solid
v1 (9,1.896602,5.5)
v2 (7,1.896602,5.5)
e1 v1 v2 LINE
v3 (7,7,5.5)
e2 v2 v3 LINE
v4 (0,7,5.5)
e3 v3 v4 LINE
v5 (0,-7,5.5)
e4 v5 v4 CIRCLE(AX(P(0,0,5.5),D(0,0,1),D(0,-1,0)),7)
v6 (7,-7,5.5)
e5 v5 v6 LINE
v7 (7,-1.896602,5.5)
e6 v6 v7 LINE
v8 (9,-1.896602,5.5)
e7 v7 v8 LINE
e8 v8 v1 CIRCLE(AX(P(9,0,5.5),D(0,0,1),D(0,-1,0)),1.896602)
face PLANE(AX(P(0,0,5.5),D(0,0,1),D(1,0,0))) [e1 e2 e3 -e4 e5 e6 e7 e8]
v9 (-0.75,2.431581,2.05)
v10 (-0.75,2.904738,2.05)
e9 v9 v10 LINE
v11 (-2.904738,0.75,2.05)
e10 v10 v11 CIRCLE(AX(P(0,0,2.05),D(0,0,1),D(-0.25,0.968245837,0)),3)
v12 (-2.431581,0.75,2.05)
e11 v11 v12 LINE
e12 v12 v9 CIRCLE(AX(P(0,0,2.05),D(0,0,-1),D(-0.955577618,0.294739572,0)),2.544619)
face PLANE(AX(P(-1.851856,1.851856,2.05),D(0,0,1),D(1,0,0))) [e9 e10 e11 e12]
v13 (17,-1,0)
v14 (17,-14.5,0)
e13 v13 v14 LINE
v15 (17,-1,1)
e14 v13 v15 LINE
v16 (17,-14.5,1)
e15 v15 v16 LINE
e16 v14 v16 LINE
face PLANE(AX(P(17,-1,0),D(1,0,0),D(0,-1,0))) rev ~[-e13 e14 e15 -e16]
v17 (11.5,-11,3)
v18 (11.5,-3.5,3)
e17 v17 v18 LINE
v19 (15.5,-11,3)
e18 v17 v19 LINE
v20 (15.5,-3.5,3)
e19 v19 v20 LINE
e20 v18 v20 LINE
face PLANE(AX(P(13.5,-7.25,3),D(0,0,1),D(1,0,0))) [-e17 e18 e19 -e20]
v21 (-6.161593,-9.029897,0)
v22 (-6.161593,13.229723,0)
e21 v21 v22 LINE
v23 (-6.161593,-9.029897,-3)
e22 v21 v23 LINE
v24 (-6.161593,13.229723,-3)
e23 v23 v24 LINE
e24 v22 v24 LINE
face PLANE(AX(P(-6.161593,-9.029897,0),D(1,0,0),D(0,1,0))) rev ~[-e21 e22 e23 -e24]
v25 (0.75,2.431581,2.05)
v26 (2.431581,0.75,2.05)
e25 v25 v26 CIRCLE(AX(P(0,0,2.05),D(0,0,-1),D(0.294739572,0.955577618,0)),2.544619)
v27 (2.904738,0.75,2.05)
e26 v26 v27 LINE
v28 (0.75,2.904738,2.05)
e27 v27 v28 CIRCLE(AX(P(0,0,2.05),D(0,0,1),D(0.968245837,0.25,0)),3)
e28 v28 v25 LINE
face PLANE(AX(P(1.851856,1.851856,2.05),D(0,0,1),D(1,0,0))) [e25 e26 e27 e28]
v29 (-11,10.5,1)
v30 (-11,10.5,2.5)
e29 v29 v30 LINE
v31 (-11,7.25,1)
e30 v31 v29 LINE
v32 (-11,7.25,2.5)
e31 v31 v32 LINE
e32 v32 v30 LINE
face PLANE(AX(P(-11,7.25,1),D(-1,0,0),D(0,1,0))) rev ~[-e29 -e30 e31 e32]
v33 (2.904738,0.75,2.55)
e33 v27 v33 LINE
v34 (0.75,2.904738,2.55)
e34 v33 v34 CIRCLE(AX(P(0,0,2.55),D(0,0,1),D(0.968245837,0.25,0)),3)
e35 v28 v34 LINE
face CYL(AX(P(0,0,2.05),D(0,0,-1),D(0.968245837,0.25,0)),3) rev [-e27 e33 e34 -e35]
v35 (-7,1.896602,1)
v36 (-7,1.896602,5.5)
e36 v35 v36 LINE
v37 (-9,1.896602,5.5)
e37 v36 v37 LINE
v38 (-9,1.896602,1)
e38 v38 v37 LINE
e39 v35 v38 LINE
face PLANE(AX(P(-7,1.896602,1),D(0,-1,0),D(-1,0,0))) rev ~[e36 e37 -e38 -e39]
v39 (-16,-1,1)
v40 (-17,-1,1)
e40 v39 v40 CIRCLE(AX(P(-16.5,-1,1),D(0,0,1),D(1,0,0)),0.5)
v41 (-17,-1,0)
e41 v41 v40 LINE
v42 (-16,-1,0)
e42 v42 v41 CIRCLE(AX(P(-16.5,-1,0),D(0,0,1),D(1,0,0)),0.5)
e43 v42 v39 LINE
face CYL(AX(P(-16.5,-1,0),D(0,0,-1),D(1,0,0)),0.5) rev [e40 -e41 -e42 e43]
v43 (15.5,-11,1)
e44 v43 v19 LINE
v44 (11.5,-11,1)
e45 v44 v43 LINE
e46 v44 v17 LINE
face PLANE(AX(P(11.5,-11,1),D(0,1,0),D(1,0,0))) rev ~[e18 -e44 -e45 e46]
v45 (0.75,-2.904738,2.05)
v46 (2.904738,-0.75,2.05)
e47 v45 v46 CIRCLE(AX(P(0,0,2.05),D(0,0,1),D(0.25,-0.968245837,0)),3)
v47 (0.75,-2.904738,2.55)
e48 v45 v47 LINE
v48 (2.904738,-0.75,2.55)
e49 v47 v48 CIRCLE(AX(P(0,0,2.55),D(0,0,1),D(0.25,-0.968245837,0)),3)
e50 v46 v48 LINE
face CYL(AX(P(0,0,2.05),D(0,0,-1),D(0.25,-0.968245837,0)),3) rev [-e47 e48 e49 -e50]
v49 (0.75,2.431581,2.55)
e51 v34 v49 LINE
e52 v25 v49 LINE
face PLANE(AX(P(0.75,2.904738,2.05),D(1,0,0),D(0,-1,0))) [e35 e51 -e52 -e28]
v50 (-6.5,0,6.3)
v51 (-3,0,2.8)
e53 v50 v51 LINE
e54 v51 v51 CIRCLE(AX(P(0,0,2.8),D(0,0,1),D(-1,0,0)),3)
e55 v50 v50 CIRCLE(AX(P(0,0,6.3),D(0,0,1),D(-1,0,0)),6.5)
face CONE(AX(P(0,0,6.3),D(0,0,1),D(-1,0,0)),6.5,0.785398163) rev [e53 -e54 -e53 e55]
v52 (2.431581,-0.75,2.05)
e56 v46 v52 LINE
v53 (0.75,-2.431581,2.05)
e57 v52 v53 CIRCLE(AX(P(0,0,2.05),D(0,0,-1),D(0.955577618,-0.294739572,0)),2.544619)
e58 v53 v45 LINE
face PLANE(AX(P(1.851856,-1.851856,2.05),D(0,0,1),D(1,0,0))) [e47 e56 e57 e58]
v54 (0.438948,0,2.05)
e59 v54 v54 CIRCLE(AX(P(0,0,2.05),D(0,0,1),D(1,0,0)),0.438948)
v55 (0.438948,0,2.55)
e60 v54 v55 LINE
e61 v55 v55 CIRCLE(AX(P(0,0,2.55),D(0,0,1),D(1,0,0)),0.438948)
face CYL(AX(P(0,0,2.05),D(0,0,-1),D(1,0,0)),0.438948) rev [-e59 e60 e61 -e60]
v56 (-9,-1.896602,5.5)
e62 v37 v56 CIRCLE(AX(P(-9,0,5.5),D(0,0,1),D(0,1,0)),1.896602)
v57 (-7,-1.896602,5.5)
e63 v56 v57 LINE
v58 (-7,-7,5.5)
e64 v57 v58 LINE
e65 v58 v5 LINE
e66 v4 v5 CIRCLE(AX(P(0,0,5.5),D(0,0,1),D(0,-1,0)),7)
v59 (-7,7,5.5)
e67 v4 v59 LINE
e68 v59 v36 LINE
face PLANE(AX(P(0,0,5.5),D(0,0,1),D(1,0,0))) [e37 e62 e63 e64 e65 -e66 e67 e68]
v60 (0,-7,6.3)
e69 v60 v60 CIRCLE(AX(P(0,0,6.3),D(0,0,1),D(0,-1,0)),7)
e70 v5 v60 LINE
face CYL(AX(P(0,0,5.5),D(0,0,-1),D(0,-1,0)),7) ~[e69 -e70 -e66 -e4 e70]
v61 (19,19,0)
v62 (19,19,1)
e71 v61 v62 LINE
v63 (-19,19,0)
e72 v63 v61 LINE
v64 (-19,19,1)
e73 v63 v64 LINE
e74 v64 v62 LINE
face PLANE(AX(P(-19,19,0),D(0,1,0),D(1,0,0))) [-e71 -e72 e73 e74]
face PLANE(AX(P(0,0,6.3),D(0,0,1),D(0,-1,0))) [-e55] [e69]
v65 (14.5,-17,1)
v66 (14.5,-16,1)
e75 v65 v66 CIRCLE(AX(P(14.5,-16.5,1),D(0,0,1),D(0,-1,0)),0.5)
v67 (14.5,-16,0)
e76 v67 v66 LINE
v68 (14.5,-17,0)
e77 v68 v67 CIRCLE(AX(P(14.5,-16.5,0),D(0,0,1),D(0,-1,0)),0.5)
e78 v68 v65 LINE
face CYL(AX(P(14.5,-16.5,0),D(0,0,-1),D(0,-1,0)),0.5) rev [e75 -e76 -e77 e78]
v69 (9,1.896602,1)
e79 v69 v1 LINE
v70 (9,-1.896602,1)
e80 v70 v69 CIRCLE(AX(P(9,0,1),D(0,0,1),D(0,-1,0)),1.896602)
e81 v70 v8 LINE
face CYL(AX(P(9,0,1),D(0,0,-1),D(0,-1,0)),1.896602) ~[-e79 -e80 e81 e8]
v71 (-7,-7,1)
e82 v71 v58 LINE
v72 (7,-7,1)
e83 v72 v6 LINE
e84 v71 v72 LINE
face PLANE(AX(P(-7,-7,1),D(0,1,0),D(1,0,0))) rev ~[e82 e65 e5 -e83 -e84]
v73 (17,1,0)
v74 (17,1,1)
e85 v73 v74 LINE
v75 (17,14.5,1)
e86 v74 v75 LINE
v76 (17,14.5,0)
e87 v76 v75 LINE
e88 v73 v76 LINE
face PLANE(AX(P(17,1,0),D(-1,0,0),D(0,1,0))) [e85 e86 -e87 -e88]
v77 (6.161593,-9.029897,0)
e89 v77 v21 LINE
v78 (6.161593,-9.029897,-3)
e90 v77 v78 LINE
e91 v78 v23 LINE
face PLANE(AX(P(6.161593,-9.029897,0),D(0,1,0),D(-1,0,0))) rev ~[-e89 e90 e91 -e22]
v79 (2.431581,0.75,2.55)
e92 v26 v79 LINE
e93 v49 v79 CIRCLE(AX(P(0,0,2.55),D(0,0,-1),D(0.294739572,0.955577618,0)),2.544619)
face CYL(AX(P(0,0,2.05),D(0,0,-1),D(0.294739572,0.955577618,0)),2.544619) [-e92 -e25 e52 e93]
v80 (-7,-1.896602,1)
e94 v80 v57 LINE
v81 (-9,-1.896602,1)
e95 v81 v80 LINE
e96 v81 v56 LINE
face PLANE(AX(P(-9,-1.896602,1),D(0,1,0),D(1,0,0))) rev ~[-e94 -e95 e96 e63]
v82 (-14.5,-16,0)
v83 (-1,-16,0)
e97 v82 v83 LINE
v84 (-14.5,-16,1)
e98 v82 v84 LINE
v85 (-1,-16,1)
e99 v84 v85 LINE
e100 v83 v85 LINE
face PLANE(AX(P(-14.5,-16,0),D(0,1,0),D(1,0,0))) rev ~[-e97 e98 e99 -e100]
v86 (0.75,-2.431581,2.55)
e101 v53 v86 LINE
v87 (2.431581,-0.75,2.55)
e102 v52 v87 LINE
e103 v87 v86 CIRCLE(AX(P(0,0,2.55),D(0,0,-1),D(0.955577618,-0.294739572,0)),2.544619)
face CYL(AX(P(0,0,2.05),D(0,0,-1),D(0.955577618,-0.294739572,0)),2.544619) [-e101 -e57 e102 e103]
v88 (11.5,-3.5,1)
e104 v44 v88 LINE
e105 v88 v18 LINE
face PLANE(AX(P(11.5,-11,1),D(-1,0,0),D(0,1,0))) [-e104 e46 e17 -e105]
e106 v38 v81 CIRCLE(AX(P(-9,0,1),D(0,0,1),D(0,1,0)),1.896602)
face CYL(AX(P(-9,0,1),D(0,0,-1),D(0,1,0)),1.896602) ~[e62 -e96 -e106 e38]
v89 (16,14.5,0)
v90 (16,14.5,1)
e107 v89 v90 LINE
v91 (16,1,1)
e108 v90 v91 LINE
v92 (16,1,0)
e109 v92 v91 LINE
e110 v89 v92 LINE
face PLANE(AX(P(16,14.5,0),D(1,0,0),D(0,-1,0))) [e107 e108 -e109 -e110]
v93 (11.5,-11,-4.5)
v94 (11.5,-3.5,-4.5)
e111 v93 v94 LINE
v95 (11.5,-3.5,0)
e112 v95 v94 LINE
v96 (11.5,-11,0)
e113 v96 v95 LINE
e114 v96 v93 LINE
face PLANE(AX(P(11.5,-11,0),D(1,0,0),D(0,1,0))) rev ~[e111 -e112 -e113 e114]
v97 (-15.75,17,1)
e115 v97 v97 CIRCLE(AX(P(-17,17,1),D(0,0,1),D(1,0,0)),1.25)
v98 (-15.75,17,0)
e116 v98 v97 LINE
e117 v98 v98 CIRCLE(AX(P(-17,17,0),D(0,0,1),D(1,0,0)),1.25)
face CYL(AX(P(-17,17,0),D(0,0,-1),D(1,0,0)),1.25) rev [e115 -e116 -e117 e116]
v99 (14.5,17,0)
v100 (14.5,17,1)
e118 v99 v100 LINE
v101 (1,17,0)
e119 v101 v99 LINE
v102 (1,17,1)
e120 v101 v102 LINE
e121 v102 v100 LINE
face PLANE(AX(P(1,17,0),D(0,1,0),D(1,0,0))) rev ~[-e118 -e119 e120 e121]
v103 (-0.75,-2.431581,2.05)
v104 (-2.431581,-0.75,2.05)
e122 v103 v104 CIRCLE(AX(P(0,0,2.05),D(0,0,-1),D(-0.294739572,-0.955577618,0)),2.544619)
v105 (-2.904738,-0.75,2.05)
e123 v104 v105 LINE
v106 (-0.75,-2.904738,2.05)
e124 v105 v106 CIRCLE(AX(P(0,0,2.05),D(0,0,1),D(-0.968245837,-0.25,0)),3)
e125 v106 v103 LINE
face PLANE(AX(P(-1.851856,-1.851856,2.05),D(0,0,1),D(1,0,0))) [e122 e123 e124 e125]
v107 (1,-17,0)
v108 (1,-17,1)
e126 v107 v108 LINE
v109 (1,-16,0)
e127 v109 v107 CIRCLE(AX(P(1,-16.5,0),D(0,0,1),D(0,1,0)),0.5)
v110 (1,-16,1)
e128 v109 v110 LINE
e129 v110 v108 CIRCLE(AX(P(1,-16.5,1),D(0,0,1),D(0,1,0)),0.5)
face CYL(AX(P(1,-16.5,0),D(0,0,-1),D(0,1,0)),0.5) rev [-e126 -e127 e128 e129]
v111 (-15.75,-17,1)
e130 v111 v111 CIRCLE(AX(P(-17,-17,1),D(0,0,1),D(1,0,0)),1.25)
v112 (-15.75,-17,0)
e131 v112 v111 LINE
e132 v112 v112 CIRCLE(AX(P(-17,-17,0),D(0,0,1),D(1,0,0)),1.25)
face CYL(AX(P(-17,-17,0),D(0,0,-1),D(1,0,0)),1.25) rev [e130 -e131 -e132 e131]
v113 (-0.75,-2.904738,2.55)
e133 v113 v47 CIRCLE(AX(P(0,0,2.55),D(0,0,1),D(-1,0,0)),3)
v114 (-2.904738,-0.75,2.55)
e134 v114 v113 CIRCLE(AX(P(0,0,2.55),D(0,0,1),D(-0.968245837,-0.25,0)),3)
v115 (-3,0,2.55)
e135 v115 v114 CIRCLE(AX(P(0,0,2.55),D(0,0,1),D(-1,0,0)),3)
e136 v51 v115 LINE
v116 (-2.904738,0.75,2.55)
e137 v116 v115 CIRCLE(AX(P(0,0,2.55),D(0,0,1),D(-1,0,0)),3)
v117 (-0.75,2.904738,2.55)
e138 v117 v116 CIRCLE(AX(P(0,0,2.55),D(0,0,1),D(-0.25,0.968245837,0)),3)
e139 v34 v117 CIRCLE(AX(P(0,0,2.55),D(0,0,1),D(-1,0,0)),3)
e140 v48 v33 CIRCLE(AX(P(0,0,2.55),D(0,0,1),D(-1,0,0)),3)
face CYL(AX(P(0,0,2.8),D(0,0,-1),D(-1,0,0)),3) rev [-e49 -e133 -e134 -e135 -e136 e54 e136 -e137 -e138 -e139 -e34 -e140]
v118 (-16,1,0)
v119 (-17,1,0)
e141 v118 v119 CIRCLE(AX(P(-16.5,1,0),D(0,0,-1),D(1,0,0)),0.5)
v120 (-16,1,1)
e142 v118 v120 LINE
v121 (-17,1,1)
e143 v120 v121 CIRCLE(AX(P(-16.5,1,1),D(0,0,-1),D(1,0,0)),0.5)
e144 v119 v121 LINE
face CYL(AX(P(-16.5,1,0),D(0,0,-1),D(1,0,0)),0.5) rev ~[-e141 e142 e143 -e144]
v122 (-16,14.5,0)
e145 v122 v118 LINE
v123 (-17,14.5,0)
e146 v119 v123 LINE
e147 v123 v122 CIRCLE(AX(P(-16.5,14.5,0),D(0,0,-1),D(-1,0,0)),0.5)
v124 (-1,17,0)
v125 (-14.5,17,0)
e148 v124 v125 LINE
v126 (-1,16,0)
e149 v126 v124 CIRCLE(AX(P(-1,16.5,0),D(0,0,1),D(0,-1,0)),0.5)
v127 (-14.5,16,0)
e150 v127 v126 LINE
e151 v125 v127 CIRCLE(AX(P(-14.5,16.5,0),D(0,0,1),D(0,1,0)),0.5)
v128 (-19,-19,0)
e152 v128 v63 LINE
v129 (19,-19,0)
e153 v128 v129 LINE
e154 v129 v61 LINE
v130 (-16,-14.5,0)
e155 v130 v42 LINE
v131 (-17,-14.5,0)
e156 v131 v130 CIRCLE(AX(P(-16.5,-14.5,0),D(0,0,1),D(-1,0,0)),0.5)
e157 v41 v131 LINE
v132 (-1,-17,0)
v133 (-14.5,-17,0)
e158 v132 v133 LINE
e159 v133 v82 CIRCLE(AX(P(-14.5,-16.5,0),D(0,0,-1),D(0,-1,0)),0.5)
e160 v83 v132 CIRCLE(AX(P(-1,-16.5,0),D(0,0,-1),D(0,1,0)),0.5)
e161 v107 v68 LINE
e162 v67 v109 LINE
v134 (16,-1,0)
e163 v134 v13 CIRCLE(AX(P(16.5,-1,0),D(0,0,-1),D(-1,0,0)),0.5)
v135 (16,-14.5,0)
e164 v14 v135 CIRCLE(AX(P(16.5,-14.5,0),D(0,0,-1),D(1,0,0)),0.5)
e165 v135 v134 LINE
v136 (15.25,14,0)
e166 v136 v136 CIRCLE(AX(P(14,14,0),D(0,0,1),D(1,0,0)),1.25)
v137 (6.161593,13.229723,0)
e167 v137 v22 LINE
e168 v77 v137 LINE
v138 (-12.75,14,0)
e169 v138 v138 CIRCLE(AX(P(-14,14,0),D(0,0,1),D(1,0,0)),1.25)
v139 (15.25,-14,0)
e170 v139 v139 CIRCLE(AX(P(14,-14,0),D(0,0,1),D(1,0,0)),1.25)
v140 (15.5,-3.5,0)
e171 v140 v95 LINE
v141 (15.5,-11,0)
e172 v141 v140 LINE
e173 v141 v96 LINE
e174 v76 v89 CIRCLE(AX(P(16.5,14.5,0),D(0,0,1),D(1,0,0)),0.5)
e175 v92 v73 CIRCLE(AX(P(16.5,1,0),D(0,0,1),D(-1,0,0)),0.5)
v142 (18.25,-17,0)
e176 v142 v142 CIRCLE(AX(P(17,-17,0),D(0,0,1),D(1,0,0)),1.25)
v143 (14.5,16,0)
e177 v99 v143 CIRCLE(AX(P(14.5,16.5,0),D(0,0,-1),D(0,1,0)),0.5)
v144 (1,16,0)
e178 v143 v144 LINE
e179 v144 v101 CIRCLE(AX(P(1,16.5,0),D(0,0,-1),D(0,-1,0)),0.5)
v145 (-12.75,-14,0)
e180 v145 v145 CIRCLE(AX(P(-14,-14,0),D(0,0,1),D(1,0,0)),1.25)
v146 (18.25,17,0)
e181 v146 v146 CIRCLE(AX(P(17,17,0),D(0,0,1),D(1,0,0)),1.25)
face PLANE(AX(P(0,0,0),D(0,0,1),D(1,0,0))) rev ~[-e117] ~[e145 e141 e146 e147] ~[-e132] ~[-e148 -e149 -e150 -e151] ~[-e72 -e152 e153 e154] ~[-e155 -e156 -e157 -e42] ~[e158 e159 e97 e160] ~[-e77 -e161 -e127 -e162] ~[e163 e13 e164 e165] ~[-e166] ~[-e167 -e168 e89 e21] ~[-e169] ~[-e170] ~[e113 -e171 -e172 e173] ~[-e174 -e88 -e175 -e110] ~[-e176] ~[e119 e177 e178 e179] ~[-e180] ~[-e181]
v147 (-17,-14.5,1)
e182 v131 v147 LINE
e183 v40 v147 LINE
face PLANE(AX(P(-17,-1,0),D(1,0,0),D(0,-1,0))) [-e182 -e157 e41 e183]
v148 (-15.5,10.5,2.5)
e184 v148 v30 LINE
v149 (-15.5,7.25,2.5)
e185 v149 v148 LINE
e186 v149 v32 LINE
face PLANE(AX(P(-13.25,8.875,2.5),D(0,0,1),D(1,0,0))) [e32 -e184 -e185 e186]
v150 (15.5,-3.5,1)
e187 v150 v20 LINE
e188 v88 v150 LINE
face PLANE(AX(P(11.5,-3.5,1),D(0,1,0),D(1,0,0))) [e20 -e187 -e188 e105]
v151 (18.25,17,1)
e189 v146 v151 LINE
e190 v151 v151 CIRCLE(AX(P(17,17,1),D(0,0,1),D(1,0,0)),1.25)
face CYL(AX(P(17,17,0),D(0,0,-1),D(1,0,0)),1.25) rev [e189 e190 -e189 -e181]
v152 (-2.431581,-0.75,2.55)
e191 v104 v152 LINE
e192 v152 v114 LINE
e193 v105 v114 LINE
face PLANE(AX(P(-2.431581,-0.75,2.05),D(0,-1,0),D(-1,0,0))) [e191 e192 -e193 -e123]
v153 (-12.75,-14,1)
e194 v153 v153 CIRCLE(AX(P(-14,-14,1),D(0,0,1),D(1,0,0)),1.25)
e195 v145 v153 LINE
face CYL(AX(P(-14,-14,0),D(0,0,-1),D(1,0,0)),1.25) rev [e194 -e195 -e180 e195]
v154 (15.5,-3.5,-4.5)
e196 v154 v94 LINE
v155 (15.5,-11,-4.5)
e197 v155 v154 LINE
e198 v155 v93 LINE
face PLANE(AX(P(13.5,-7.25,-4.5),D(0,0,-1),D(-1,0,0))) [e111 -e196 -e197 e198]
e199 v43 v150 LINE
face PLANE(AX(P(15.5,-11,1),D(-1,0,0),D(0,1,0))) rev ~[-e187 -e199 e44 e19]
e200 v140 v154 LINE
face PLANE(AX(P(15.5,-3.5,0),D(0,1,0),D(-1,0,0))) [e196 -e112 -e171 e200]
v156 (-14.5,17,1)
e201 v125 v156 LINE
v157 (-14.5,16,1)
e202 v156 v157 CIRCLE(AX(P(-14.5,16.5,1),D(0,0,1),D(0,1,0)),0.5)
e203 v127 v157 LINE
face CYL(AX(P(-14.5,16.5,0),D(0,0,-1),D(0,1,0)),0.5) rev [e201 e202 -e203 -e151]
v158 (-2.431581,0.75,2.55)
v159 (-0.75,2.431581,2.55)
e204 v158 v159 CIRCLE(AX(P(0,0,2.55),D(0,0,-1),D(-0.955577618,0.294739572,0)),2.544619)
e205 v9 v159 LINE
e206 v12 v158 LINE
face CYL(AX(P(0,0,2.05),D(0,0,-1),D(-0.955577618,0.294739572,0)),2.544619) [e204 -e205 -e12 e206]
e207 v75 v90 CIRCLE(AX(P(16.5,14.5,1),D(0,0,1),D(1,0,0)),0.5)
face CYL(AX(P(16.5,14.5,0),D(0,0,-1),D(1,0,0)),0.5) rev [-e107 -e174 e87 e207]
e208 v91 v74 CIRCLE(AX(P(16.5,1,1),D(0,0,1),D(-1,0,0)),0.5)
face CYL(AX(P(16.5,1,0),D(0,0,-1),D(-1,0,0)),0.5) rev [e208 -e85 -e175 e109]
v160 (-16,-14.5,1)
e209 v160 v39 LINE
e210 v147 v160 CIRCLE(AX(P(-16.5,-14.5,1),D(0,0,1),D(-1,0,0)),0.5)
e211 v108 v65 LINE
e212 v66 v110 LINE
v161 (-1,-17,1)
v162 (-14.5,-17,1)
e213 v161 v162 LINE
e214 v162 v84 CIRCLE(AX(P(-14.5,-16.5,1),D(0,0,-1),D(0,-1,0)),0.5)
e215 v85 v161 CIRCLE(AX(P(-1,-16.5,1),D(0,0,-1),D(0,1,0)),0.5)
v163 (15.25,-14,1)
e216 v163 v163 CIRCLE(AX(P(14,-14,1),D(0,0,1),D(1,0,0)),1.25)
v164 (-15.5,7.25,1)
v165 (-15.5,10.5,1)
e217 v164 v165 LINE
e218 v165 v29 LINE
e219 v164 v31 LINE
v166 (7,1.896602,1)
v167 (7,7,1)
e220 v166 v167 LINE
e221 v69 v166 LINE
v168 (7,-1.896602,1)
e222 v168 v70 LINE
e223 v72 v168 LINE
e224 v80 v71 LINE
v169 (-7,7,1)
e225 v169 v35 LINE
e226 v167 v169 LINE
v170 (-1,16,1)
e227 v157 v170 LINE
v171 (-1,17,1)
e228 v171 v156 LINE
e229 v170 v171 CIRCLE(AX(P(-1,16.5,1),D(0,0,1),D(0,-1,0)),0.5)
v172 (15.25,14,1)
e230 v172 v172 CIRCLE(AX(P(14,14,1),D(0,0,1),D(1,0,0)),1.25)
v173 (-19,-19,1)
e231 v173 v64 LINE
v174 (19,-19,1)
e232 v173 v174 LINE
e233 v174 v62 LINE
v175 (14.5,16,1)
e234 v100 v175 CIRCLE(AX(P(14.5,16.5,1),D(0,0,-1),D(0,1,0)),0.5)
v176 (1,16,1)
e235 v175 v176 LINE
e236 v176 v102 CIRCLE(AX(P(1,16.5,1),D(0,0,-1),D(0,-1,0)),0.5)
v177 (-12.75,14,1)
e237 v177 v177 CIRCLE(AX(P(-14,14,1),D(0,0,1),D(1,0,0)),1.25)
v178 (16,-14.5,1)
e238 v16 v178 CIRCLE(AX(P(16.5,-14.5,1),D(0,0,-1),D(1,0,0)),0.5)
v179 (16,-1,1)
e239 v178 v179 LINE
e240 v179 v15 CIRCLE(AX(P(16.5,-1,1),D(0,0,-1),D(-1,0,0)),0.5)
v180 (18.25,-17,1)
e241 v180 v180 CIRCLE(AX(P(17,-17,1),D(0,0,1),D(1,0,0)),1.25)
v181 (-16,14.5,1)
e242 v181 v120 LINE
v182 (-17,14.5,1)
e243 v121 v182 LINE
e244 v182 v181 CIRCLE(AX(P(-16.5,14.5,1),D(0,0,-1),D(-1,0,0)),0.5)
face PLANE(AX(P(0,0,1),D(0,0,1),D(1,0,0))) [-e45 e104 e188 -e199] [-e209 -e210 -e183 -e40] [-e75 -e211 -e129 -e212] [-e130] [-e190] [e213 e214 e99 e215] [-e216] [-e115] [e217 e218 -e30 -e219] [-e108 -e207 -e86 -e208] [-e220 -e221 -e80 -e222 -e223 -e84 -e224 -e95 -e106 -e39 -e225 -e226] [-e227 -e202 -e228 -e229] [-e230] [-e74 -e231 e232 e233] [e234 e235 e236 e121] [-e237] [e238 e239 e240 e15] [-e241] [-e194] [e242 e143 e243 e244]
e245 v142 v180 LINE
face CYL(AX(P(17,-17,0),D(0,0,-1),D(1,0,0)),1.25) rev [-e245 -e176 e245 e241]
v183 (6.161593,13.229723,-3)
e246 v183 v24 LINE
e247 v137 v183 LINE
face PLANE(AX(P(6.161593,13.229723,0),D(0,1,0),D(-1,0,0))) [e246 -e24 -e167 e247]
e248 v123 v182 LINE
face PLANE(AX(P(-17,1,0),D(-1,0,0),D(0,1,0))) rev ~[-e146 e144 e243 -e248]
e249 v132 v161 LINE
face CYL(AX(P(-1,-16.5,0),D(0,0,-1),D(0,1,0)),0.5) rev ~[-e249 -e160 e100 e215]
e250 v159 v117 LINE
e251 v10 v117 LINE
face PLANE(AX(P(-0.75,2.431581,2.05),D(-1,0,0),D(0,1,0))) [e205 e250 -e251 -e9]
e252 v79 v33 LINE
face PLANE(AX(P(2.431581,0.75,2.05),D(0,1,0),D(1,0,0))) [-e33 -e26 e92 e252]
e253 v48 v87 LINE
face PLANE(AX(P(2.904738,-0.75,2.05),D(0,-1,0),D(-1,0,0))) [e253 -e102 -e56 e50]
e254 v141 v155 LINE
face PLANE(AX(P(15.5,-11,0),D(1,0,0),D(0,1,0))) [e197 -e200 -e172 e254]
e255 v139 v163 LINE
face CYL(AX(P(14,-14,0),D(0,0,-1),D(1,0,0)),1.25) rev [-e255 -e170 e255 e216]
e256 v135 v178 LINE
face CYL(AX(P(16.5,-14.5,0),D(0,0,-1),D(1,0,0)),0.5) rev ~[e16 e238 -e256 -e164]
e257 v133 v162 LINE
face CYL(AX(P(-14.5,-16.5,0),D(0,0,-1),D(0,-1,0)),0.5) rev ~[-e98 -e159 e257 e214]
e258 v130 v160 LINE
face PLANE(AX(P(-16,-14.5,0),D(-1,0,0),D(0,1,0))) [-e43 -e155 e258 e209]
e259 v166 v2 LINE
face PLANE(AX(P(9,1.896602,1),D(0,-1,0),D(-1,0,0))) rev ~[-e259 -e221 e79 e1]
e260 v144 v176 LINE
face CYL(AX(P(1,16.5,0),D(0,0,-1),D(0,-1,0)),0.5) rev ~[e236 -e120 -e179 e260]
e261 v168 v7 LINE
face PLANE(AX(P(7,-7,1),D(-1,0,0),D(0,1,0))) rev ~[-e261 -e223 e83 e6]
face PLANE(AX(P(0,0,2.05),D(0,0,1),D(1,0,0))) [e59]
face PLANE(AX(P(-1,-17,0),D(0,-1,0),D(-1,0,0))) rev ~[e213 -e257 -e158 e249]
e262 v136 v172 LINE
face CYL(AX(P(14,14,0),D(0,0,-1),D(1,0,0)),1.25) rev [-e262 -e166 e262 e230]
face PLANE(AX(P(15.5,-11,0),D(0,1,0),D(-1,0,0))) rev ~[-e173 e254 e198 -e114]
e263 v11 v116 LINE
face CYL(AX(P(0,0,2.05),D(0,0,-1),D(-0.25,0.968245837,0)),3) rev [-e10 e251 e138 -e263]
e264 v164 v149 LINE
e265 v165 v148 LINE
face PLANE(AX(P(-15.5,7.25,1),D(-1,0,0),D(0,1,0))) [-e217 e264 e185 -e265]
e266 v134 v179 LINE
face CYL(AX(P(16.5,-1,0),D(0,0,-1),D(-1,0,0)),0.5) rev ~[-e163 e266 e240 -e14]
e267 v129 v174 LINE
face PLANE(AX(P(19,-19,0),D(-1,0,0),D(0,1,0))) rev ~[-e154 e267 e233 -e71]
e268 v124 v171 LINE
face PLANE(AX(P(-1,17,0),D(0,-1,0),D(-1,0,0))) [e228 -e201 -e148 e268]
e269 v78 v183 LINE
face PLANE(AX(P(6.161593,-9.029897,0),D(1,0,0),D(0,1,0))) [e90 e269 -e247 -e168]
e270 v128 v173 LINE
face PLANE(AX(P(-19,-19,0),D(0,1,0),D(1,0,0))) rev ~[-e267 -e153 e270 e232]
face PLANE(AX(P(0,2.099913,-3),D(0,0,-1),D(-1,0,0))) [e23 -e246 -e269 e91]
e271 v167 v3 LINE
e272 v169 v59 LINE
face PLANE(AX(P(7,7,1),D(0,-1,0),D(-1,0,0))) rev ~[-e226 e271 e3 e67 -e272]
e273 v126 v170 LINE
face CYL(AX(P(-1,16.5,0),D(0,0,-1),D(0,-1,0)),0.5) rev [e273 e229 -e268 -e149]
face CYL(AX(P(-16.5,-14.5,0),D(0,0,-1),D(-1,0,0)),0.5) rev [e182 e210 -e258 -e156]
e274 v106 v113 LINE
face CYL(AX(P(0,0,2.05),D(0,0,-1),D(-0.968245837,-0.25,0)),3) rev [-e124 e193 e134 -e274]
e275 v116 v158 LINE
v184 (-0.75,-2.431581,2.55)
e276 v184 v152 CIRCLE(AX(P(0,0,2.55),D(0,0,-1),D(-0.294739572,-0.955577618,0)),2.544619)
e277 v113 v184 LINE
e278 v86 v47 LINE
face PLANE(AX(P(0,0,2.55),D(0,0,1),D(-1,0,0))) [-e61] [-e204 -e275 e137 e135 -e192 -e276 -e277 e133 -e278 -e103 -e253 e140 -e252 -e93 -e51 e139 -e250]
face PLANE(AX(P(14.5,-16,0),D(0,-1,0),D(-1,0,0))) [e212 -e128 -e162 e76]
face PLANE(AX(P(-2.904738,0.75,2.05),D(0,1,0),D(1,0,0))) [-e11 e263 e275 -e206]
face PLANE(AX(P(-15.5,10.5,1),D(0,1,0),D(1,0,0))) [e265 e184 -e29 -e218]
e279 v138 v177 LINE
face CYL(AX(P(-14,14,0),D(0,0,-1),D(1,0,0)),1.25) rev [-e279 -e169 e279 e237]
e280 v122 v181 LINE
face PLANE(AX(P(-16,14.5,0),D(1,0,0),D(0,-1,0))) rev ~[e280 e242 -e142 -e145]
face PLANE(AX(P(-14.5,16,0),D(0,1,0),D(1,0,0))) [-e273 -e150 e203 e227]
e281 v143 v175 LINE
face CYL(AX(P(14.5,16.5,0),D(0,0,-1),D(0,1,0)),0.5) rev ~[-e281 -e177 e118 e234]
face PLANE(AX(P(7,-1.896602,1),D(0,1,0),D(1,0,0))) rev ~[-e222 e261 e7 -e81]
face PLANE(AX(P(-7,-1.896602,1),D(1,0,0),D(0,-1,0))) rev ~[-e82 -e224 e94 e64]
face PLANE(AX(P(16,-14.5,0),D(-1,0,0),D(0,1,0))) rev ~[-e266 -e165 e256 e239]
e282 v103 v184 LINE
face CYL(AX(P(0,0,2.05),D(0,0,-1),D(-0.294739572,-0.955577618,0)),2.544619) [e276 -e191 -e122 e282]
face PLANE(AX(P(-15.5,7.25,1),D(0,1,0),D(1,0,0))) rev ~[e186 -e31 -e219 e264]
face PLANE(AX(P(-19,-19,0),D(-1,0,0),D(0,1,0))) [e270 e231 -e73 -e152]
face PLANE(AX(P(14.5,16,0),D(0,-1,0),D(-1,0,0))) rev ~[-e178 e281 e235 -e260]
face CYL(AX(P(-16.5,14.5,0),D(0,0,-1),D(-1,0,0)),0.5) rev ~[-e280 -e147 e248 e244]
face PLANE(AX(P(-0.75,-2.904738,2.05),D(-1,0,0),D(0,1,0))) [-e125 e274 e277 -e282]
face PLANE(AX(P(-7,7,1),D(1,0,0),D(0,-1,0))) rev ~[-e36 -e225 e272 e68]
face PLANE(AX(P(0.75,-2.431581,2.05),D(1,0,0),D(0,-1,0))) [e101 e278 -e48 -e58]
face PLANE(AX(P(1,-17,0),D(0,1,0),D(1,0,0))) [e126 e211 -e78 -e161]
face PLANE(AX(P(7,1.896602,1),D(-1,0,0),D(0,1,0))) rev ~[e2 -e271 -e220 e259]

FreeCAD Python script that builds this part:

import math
import FreeCAD as App
import Part
import Sketcher
from FreeCAD import Vector
Q = App.Units.Quantity

doc = App.newDocument("Part")
body = doc.addObject("PartDesign::Body", "Body")

# Sketch on XY plane
sketch1 = body.newObject("Sketcher::SketchObject", "Sketch")
sketch1.AttachmentSupport = (doc.getObject("XY_Plane"), [""])
sketch1.MapMode = "FlatFace"
sketch1.addGeometry([
    Part.LineSegment(Vector(-19, 19, 0), Vector(-19, -19, 0)),  # 0
    Part.LineSegment(Vector(-19, -19, 0), Vector(19, -19, 0)),  # 1
    Part.LineSegment(Vector(19, -19, 0), Vector(19, 19, 0)),  # 2
    Part.LineSegment(Vector(19, 19, 0), Vector(-19, 19, 0)),  # 3
    Part.Circle(Vector(-17, -17, 0), Vector(0, 0, 1), 1.25),  # 4
    Part.Circle(Vector(-14, -14, 0), Vector(0, 0, 1), 1.25),  # 5
    Part.ArcOfCircle(Part.Circle(Vector(-1, -16.5, 0), Vector(0, 0, 1), 0.5), math.radians(-90), math.radians(90)),  # 6
    Part.LineSegment(Vector(-1, -17, 0), Vector(-14.5, -17, 0)),  # 7
    Part.ArcOfCircle(Part.Circle(Vector(-14.5, -16.5, 0), Vector(0, 0, 1), 0.5), math.radians(90), math.radians(270)),  # 8
    Part.LineSegment(Vector(-14.5, -16, 0), Vector(-1, -16, 0)),  # 9
    Part.LineSegment(Vector(-17, -14.5, 0), Vector(-17, -1, 0)),  # 10
    Part.ArcOfCircle(Part.Circle(Vector(-16.5, -1, 0), Vector(0, 0, 1), 0.5), math.radians(0), math.radians(180)),  # 11
    Part.LineSegment(Vector(-16, -1, 0), Vector(-16, -14.5, 0)),  # 12
    Part.ArcOfCircle(Part.Circle(Vector(-16.5, -14.5, 0), Vector(0, 0, 1), 0.5), math.radians(180), math.radians(360)),  # 13
    Part.LineSegment(Vector(14.5, -17, 0), Vector(1, -17, 0)),  # 14
    Part.ArcOfCircle(Part.Circle(Vector(1, -16.5, 0), Vector(0, 0, 1), 0.5), math.radians(90), math.radians(270)),  # 15
    Part.LineSegment(Vector(1, -16, 0), Vector(14.5, -16, 0)),  # 16
    Part.ArcOfCircle(Part.Circle(Vector(14.5, -16.5, 0), Vector(0, 0, 1), 0.5), math.radians(-90), math.radians(90)),  # 17
    Part.Circle(Vector(17, -17, 0), Vector(0, 0, 1), 1.25),  # 18
    Part.Circle(Vector(14, -14, 0), Vector(0, 0, 1), 1.25),  # 19
    Part.ArcOfCircle(Part.Circle(Vector(16.5, -1, 0), Vector(0, 0, 1), 0.5), math.radians(0), math.radians(180)),  # 20
    Part.LineSegment(Vector(17, -1, 0), Vector(17, -14.5, 0)),  # 21
    Part.ArcOfCircle(Part.Circle(Vector(16.5, -14.5, 0), Vector(0, 0, 1), 0.5), math.radians(180), math.radians(360)),  # 22
    Part.LineSegment(Vector(16, -14.5, 0), Vector(16, -1, 0)),  # 23
    Part.ArcOfCircle(Part.Circle(Vector(-16.5, 1, 0), Vector(0, 0, 1), 0.5), math.radians(180), math.radians(360)),  # 24
    Part.LineSegment(Vector(-17, 1, 0), Vector(-17, 14.5, 0)),  # 25
    Part.ArcOfCircle(Part.Circle(Vector(-16.5, 14.5, 0), Vector(0, 0, 1), 0.5), math.radians(0), math.radians(180)),  # 26
    Part.LineSegment(Vector(-16, 14.5, 0), Vector(-16, 1, 0)),  # 27
    Part.Circle(Vector(-14, 14, 0), Vector(0, 0, 1), 1.25),  # 28
    Part.Circle(Vector(-17, 17, 0), Vector(0, 0, 1), 1.25),  # 29
    Part.LineSegment(Vector(-14.5, 17, 0), Vector(-1, 17, 0)),  # 30
    Part.ArcOfCircle(Part.Circle(Vector(-1, 16.5, 0), Vector(0, 0, 1), 0.5), math.radians(-90), math.radians(90)),  # 31
    Part.LineSegment(Vector(-1, 16, 0), Vector(-14.5, 16, 0)),  # 32
    Part.ArcOfCircle(Part.Circle(Vector(-14.5, 16.5, 0), Vector(0, 0, 1), 0.5), math.radians(90), math.radians(270)),  # 33
    Part.LineSegment(Vector(17, 14.5, 0), Vector(17, 1, 0)),  # 34
    Part.ArcOfCircle(Part.Circle(Vector(16.5, 1, 0), Vector(0, 0, 1), 0.5), math.radians(180), math.radians(360)),  # 35
    Part.LineSegment(Vector(16, 1, 0), Vector(16, 14.5, 0)),  # 36
    Part.ArcOfCircle(Part.Circle(Vector(16.5, 14.5, 0), Vector(0, 0, 1), 0.5), math.radians(0), math.radians(180)),  # 37
    Part.ArcOfCircle(Part.Circle(Vector(1, 16.5, 0), Vector(0, 0, 1), 0.5), math.radians(90), math.radians(270)),  # 38
    Part.LineSegment(Vector(1, 17, 0), Vector(14.5, 17, 0)),  # 39
    Part.ArcOfCircle(Part.Circle(Vector(14.5, 16.5, 0), Vector(0, 0, 1), 0.5), math.radians(-90), math.radians(90)),  # 40
    Part.LineSegment(Vector(14.5, 16, 0), Vector(1, 16, 0)),  # 41
    Part.Circle(Vector(14, 14, 0), Vector(0, 0, 1), 1.25),  # 42
    Part.Circle(Vector(17, 17, 0), Vector(0, 0, 1), 1.25),  # 43
], False)
sketch1.addConstraint([
    Sketcher.Constraint("Coincident", 0, 2, 1, 1),
    Sketcher.Constraint("Coincident", 1, 2, 2, 1),
    Sketcher.Constraint("Coincident", 2, 2, 3, 1),
    Sketcher.Constraint("Coincident", 3, 2, 0, 1),
    Sketcher.Constraint("Tangent", 6, 1, 7, 1),
    Sketcher.Constraint("Tangent", 7, 2, 8, 2),
    Sketcher.Constraint("Tangent", 8, 1, 9, 1),
    Sketcher.Constraint("Tangent", 9, 2, 6, 2),
    Sketcher.Constraint("Tangent", 10, 2, 11, 2),
    Sketcher.Constraint("Tangent", 11, 1, 12, 1),
    Sketcher.Constraint("Tangent", 12, 2, 13, 2),
    Sketcher.Constraint("Tangent", 13, 1, 10, 1),
    Sketcher.Constraint("Tangent", 14, 2, 15, 2),
    Sketcher.Constraint("Tangent", 15, 1, 16, 1),
    Sketcher.Constraint("Tangent", 16, 2, 17, 2),
    Sketcher.Constraint("Tangent", 17, 1, 14, 1),
    Sketcher.Constraint("Tangent", 20, 1, 21, 1),
    Sketcher.Constraint("Tangent", 21, 2, 22, 2),
    Sketcher.Constraint("Tangent", 22, 1, 23, 1),
    Sketcher.Constraint("Tangent", 23, 2, 20, 2),
    Sketcher.Constraint("Tangent", 24, 1, 25, 1),
    Sketcher.Constraint("Tangent", 25, 2, 26, 2),
    Sketcher.Constraint("Tangent", 26, 1, 27, 1),
    Sketcher.Constraint("Tangent", 27, 2, 24, 2),
    Sketcher.Constraint("Tangent", 30, 2, 31, 2),
    Sketcher.Constraint("Tangent", 31, 1, 32, 1),
    Sketcher.Constraint("Tangent", 32, 2, 33, 2),
    Sketcher.Constraint("Tangent", 33, 1, 30, 1),
    Sketcher.Constraint("Tangent", 34, 2, 35, 2),
    Sketcher.Constraint("Tangent", 35, 1, 36, 1),
    Sketcher.Constraint("Tangent", 36, 2, 37, 2),
    Sketcher.Constraint("Tangent", 37, 1, 34, 1),
    Sketcher.Constraint("Tangent", 38, 1, 39, 1),
    Sketcher.Constraint("Tangent", 39, 2, 40, 2),
    Sketcher.Constraint("Tangent", 40, 1, 41, 1),
    Sketcher.Constraint("Tangent", 41, 2, 38, 2),
    Sketcher.Constraint("Vertical", 0),
    Sketcher.Constraint("Horizontal", 1),
    Sketcher.Constraint("Vertical", 2),
    Sketcher.Constraint("Horizontal", 3),
    Sketcher.Constraint("Horizontal", 7),
    Sketcher.Constraint("Horizontal", 9),
    Sketcher.Constraint("Vertical", 10),
    Sketcher.Constraint("Vertical", 12),
    Sketcher.Constraint("Horizontal", 14),
    Sketcher.Constraint("Horizontal", 16),
    Sketcher.Constraint("Vertical", 21),
    Sketcher.Constraint("Vertical", 23),
    Sketcher.Constraint("Vertical", 25),
    Sketcher.Constraint("Vertical", 27),
    Sketcher.Constraint("Horizontal", 30),
    Sketcher.Constraint("Horizontal", 32),
    Sketcher.Constraint("Vertical", 34),
    Sketcher.Constraint("Vertical", 36),
    Sketcher.Constraint("Horizontal", 39),
    Sketcher.Constraint("Horizontal", 41),
    Sketcher.Constraint("Equal", 4, 5),
    Sketcher.Constraint("Equal", 8, 11),
    Sketcher.Constraint("Equal", 13, 15),
    Sketcher.Constraint("Equal", 5, 18),
    Sketcher.Constraint("Equal", 18, 19),
    Sketcher.Constraint("Equal", 17, 20),
    Sketcher.Constraint("Equal", 22, 24),
    Sketcher.Constraint("Equal", 19, 28),
    Sketcher.Constraint("Equal", 28, 29),
    Sketcher.Constraint("Equal", 26, 31),
    Sketcher.Constraint("Equal", 33, 35),
    Sketcher.Constraint("Equal", 37, 38),
    Sketcher.Constraint("Equal", 29, 42),
    Sketcher.Constraint("Equal", 42, 43),
    Sketcher.Constraint("Symmetric", 20, 3, 24, 3, -1, 1),
    Sketcher.Constraint("Symmetric", 19, 3, 28, 3, -1, 1),
    Sketcher.Constraint("Symmetric", 18, 3, 29, 3, -1, 1),
    Sketcher.Constraint("Symmetric", 15, 3, 31, 3, -1, 1),
    Sketcher.Constraint("Symmetric", 11, 3, 35, 3, -1, 1),
    Sketcher.Constraint("Symmetric", 6, 3, 38, 3, -1, 1),
    Sketcher.Constraint("Symmetric", 5, 3, 42, 3, -1, 1),
    Sketcher.Constraint("Symmetric", 4, 3, 43, 3, -1, 1),
    Sketcher.Constraint("Symmetric", 0, 2, 2, 2, -1, 1),
    Sketcher.Constraint("Symmetric", 6, 3, 15, 3, -2),
    Sketcher.Constraint("Symmetric", 4, 3, 18, 3, -2),
    Sketcher.Constraint("Symmetric", 5, 3, 19, 3, -2),
    Sketcher.Constraint("Symmetric", 11, 3, 20, 3, -2),
    Sketcher.Constraint("Horizontal", 13, 3, 22, 3),
    Sketcher.Constraint("Horizontal", 26, 3, 37, 3),
    Sketcher.Constraint("Horizontal", 18, 3, 6, 1),
    Sketcher.Constraint("Vertical", 8, 3, 33, 3),
    Sketcher.Constraint("Vertical", 17, 3, 40, 3),
    Sketcher.Constraint("Vertical", 29, 3, 10, 2),
    Sketcher.Constraint("Equal", 9, 14),
    Sketcher.Constraint("Equal", 3, 0),
    Sketcher.Constraint("Equal", 41, 10),
    Sketcher.Constraint("Equal", 23, 25),
    Sketcher.Constraint("Diameter", 4, Q("2.5 mm")),
    Sketcher.Constraint("Radius", 6, Q("0.5 mm")),
    Sketcher.Constraint("DistanceX", 1, 1, 1, 2, Q("38 mm")),
    Sketcher.Constraint("DistanceX", 7, 2, 7, 1, Q("13.5 mm")),
    Sketcher.Constraint("DistanceX", 4, 3, -1, 1, Q("17 mm")),
    Sketcher.Constraint("DistanceY", 4, 3, -1, 1, Q("17 mm")),
    Sketcher.Constraint("DistanceX", 5, 3, -1, 1, Q("14 mm")),
    Sketcher.Constraint("DistanceY", 5, 3, -1, 1, Q("14 mm")),
    Sketcher.Constraint("DistanceX", 6, 3, -1, 1, Q("1 mm")),
    Sketcher.Constraint("DistanceY", 11, 3, -1, 1, Q("1 mm")),
])
pad1 = body.newObject("PartDesign::Pad", "Pad")
pad1.Profile = sketch1
pad1.Length = 1

# Sketch on XY plane
sketch2 = body.newObject("Sketcher::SketchObject", "Sketch001")
sketch2.AttachmentSupport = (doc.getObject("XY_Plane"), [""])
sketch2.MapMode = "FlatFace"
sketch2.AttachmentOffset = App.Placement(Vector(0, 0, 1), App.Rotation())
sketch2.addGeometry([
    Part.LineSegment(Vector(-7, -7, 0), Vector(7, -7, 0)),  # 0
    Part.LineSegment(Vector(7, -7, 0), Vector(7, -1.896602, 0)),  # 1
    Part.LineSegment(Vector(7, -1.896602, 0), Vector(9, -1.896602, 0)),  # 2
    Part.ArcOfCircle(Part.Circle(Vector(9, 0, 0), Vector(0, 0, 1), 1.896602), math.radians(-90), math.radians(90)),  # 3
    Part.LineSegment(Vector(9, 1.896602, 0), Vector(7, 1.896602, 0)),  # 4
    Part.LineSegment(Vector(7, 1.896602, 0), Vector(7, 7, 0)),  # 5
    Part.LineSegment(Vector(7, 7, 0), Vector(-7, 7, 0)),  # 6
    Part.LineSegment(Vector(-7, 7, 0), Vector(-7, 1.896602, 0)),  # 7
    Part.LineSegment(Vector(-7, 1.896602, 0), Vector(-9, 1.896602, 0)),  # 8
    Part.ArcOfCircle(Part.Circle(Vector(-9, 0, 0), Vector(0, 0, 1), 1.896602), math.radians(90), math.radians(270)),  # 9
    Part.LineSegment(Vector(-9, -1.896602, 0), Vector(-7, -1.896602, 0)),  # 10
    Part.LineSegment(Vector(-7, -1.896602, 0), Vector(-7, -7, 0)),  # 11
], False)
sketch2.addConstraint([
    Sketcher.Constraint("Coincident", 0, 2, 1, 1),
    Sketcher.Constraint("Coincident", 1, 2, 2, 1),
    Sketcher.Constraint("Tangent", 2, 2, 3, 1),
    Sketcher.Constraint("Tangent", 3, 2, 4, 1),
    Sketcher.Constraint("Coincident", 4, 2, 5, 1),
    Sketcher.Constraint("Coincident", 5, 2, 6, 1),
    Sketcher.Constraint("Coincident", 6, 2, 7, 1),
    Sketcher.Constraint("Coincident", 7, 2, 8, 1),
    Sketcher.Constraint("Tangent", 8, 2, 9, 1),
    Sketcher.Constraint("Tangent", 9, 2, 10, 1),
    Sketcher.Constraint("Coincident", 10, 2, 11, 1),
    Sketcher.Constraint("Coincident", 11, 2, 0, 1),
    Sketcher.Constraint("Horizontal", 0),
    Sketcher.Constraint("Vertical", 1),
    Sketcher.Constraint("Horizontal", 2),
    Sketcher.Constraint("Horizontal", 4),
    Sketcher.Constraint("Vertical", 5),
    Sketcher.Constraint("Horizontal", 6),
    Sketcher.Constraint("Vertical", 7),
    Sketcher.Constraint("Horizontal", 8),
    Sketcher.Constraint("Horizontal", 10),
    Sketcher.Constraint("Vertical", 11),
    Sketcher.Constraint("Equal", 3, 9),
    Sketcher.Constraint("Symmetric", 3, 3, 9, 3, -1, 1),
    Sketcher.Constraint("Symmetric", 0, 2, 6, 2, -1, 1),
    Sketcher.Constraint("Symmetric", 4, 2, 7, 2, -2),
    Sketcher.Constraint("Vertical", 7, 2, 10, 2),
    Sketcher.Constraint("DistanceX", 0, 1, 0, 2, Q("14 mm")),
    Sketcher.Constraint("DistanceX", 2, 1, 2, 2, Q("2 mm")),
    Sketcher.Constraint("DistanceY", 0, 2, -1, 1, Q("7 mm")),
    Sketcher.Constraint("Radius", 3, Q("1.896602 mm")),
])
pad2 = body.newObject("PartDesign::Pad", "Pad001")
pad2.Profile = sketch2
pad2.Length = 4.5

# Sketch on XY plane
sketch3 = body.newObject("Sketcher::SketchObject", "Sketch002")
sketch3.AttachmentSupport = (doc.getObject("XY_Plane"), [""])
sketch3.MapMode = "FlatFace"
sketch3.AttachmentOffset = App.Placement(Vector(0, 0, 5.5), App.Rotation())
sketch3.addGeometry(Part.Circle(Vector(0, 0, 0), Vector(0, 0, 1), 7), False)
sketch3.addConstraint([
    Sketcher.Constraint("Coincident", 0, 3, -1, 1),
    Sketcher.Constraint("Diameter", 0, Q("14 mm")),
])
pad3 = body.newObject("PartDesign::Pad", "Pad002")
pad3.Profile = sketch3
pad3.Length = 0.8

# Sketch on XZ plane
sketch4 = body.newObject("Sketcher::SketchObject", "Sketch003")
sketch4.AttachmentSupport = (doc.getObject("XZ_Plane"), [""])
sketch4.MapMode = "FlatFace"
sketch4.addGeometry([
    Part.LineSegment(Vector(-3, 2.8, 0), Vector(-6.5, 6.3, 0)),  # 0
    Part.LineSegment(Vector(-6.5, 6.3, 0), Vector(0, 6.3, 0)),  # 1
    Part.LineSegment(Vector(0, 6.3, 0), Vector(0, 2.55, 0)),  # 2
    Part.LineSegment(Vector(0, 2.55, 0), Vector(-3, 2.55, 0)),  # 3
    Part.LineSegment(Vector(-3, 2.55, 0), Vector(-3, 2.8, 0)),  # 4
], False)
sketch4.addConstraint([
    Sketcher.Constraint("Coincident", 0, 2, 1, 1),
    Sketcher.Constraint("Coincident", 1, 2, 2, 1),
    Sketcher.Constraint("Coincident", 2, 2, 3, 1),
    Sketcher.Constraint("Coincident", 3, 2, 4, 1),
    Sketcher.Constraint("Coincident", 4, 2, 0, 1),
    Sketcher.Constraint("Horizontal", 1),
    Sketcher.Constraint("Vertical", 2),
    Sketcher.Constraint("Horizontal", 3),
    Sketcher.Constraint("Vertical", 4),
    Sketcher.Constraint("PointOnObject", 1, 2, -2),
    Sketcher.Constraint("DistanceX", 3, 2, 3, 1, Q("3 mm")),
    Sketcher.Constraint("Angle", 0, Q("135 deg")),
    Sketcher.Constraint("DistanceX", 1, 1, 1, 2, Q("6.5 mm")),
    Sketcher.Constraint("DistanceY", 2, 2, 2, 1, Q("3.75 mm")),
    Sketcher.Constraint("DistanceY", -1, 1, 0, 2, Q("6.3 mm")),
])
groove = body.newObject("PartDesign::Groove", "Groove")
groove.Profile = sketch4
groove.ReferenceAxis = (sketch4, ["V_Axis"])
groove.Angle = 360

# Sketch on XY plane
sketch5 = body.newObject("Sketcher::SketchObject", "Sketch004")
sketch5.AttachmentSupport = (doc.getObject("XY_Plane"), [""])
sketch5.MapMode = "FlatFace"
sketch5.AttachmentOffset = App.Placement(Vector(0, 0, 2.05), App.Rotation())
sketch5.addGeometry([
    Part.Circle(Vector(0, 0, 0), Vector(0, 0, 1), 0.438948),  # 0
    Part.LineSegment(Vector(0.75, 2.904738, 0), Vector(0.75, 2.431581, 0)),  # 1
    Part.ArcOfCircle(Part.Circle(Vector(0, 0, 0), Vector(0, 0, 1), 2.544619), math.radians(17.141922), math.radians(72.858078)),  # 2
    Part.LineSegment(Vector(2.431581, 0.75, 0), Vector(2.904738, 0.75, 0)),  # 3
    Part.ArcOfCircle(Part.Circle(Vector(0, 0, 0), Vector(0, 0, 1), 3), math.radians(14.477512), math.radians(75.522488)),  # 4
    Part.LineSegment(Vector(2.904738, -0.75, 0), Vector(2.431581, -0.75, 0)),  # 5
    Part.ArcOfCircle(Part.Circle(Vector(0, 0, 0), Vector(0, 0, 1), 2.544619), math.radians(-72.858078), math.radians(-17.141922)),  # 6
    Part.LineSegment(Vector(0.75, -2.431581, 0), Vector(0.75, -2.904738, 0)),  # 7
    Part.ArcOfCircle(Part.Circle(Vector(0, 0, 0), Vector(0, 0, 1), 3), math.radians(-75.522488), math.radians(-14.477512)),  # 8
    Part.LineSegment(Vector(-0.75, -2.904738, 0), Vector(-0.75, -2.431581, 0)),  # 9
    Part.ArcOfCircle(Part.Circle(Vector(0, 0, 0), Vector(0, 0, 1), 2.544619), math.radians(-162.858078), math.radians(-107.141922)),  # 10
    Part.LineSegment(Vector(-2.431581, -0.75, 0), Vector(-2.904738, -0.75, 0)),  # 11
    Part.ArcOfCircle(Part.Circle(Vector(0, 0, 0), Vector(0, 0, 1), 3), math.radians(-165.522488), math.radians(-104.477512)),  # 12
    Part.LineSegment(Vector(-2.904738, 0.75, 0), Vector(-2.431581, 0.75, 0)),  # 13
    Part.ArcOfCircle(Part.Circle(Vector(0, 0, 0), Vector(0, 0, 1), 2.544619), math.radians(107.141922), math.radians(162.858078)),  # 14
    Part.LineSegment(Vector(-0.75, 2.431581, 0), Vector(-0.75, 2.904738, 0)),  # 15
    Part.ArcOfCircle(Part.Circle(Vector(0, 0, 0), Vector(0, 0, 1), 3), math.radians(104.477512), math.radians(165.522488)),  # 16
], False)
sketch5.addConstraint([
    Sketcher.Constraint("Coincident", 1, 2, 2, 2),
    Sketcher.Constraint("Coincident", 2, 1, 3, 1),
    Sketcher.Constraint("Coincident", 3, 2, 4, 1),
    Sketcher.Constraint("Coincident", 4, 2, 1, 1),
    Sketcher.Constraint("Coincident", 5, 2, 6, 2),
    Sketcher.Constraint("Coincident", 6, 1, 7, 1),
    Sketcher.Constraint("Coincident", 7, 2, 8, 1),
    Sketcher.Constraint("Coincident", 8, 2, 5, 1),
    Sketcher.Constraint("Coincident", 9, 2, 10, 2),
    Sketcher.Constraint("Coincident", 10, 1, 11, 1),
    Sketcher.Constraint("Coincident", 11, 2, 12, 1),
    Sketcher.Constraint("Coincident", 12, 2, 9, 1),
    Sketcher.Constraint("Coincident", 13, 2, 14, 2),
    Sketcher.Constraint("Coincident", 14, 1, 15, 1),
    Sketcher.Constraint("Coincident", 15, 2, 16, 1),
    Sketcher.Constraint("Coincident", 16, 2, 13, 1),
    Sketcher.Constraint("Vertical", 1),
    Sketcher.Constraint("Horizontal", 3),
    Sketcher.Constraint("Horizontal", 5),
    Sketcher.Constraint("Vertical", 7),
    Sketcher.Constraint("Vertical", 9),
    Sketcher.Constraint("Horizontal", 11),
    Sketcher.Constraint("Horizontal", 13),
    Sketcher.Constraint("Vertical", 15),
    Sketcher.Constraint("Coincident", 0, 3, -1, 1),
    Sketcher.Constraint("Coincident", 2, 3, -1, 1),
    Sketcher.Constraint("Coincident", 4, 3, -1, 1),
    Sketcher.Constraint("Coincident", 6, 3, -1, 1),
    Sketcher.Constraint("Coincident", 8, 3, -1, 1),
    Sketcher.Constraint("Coincident", 10, 3, -1, 1),
    Sketcher.Constraint("Coincident", 12, 3, -1, 1),
    Sketcher.Constraint("Coincident", 14, 3, -1, 1),
    Sketcher.Constraint("Coincident", 16, 3, -1, 1),
    Sketcher.Constraint("Equal", 2, 6),
    Sketcher.Constraint("Equal", 4, 8),
    Sketcher.Constraint("Equal", 6, 10),
    Sketcher.Constraint("Equal", 8, 12),
    Sketcher.Constraint("Equal", 10, 14),
    Sketcher.Constraint("Equal", 12, 16),
    Sketcher.Constraint("Horizontal", 6, 1, 9, 2),
    Sketcher.Constraint("Horizontal", 8, 2, 10, 1),
    Sketcher.Constraint("Horizontal", 3, 2, 13, 2),
    Sketcher.Constraint("Horizontal", 1, 2, 14, 1),
    Sketcher.Constraint("Vertical", 2, 1, 5, 2),
    Sketcher.Constraint("Vertical", 4, 2, 6, 1),
    Sketcher.Constraint("Equal", 13, 1),
    Sketcher.Constraint("Radius", 4, Q("3 mm")),
    Sketcher.Constraint("DistanceY", 5, 2, 2, 1, Q("1.5 mm")),
    Sketcher.Constraint("Radius", 2, Q("2.544619 mm")),
    Sketcher.Constraint("Diameter", 0, Q("0.877896 mm")),
])
pocket1 = body.newObject("PartDesign::Pocket", "Pocket")
pocket1.Profile = sketch5
pocket1.Length = 0.5
pocket1.Reversed = True

# Sketch on XY plane
sketch6 = body.newObject("Sketcher::SketchObject", "Sketch005")
sketch6.AttachmentSupport = (doc.getObject("XY_Plane"), [""])
sketch6.MapMode = "FlatFace"
sketch6.addGeometry([
    Part.LineSegment(Vector(6.161593, 13.229723, 0), Vector(6.161593, -9.029897, 0)),
    Part.LineSegment(Vector(6.161593, -9.029897, 0), Vector(-6.161593, -9.029897, 0)),
    Part.LineSegment(Vector(-6.161593, -9.029897, 0), Vector(-6.161593, 13.229723, 0)),
    Part.LineSegment(Vector(-6.161593, 13.229723, 0), Vector(6.161593, 13.229723, 0)),
], False)
sketch6.addConstraint([
    Sketcher.Constraint("Coincident", 0, 2, 1, 1),
    Sketcher.Constraint("Coincident", 1, 2, 2, 1),
    Sketcher.Constraint("Coincident", 2, 2, 3, 1),
    Sketcher.Constraint("Coincident", 3, 2, 0, 1),
    Sketcher.Constraint("Vertical", 0),
    Sketcher.Constraint("Horizontal", 1),
    Sketcher.Constraint("Vertical", 2),
    Sketcher.Constraint("Horizontal", 3),
    Sketcher.Constraint("DistanceY", 0, 2, 0, 1, Q("22.25962 mm")),
    Sketcher.Constraint("DistanceX", 1, 2, 1, 1, Q("12.323185 mm")),
    Sketcher.Constraint("DistanceX", -1, 1, 0, 2, Q("6.161593 mm")),
    Sketcher.Constraint("DistanceY", 0, 2, -1, 1, Q("9.029897 mm")),
])
pad4 = body.newObject("PartDesign::Pad", "Pad003")
pad4.Profile = sketch6
pad4.Length = 3
pad4.Reversed = True

# Sketch on XY plane
sketch7 = body.newObject("Sketcher::SketchObject", "Sketch006")
sketch7.AttachmentSupport = (doc.getObject("XY_Plane"), [""])
sketch7.MapMode = "FlatFace"
sketch7.addGeometry([
    Part.LineSegment(Vector(15.5, -3.5, 0), Vector(15.5, -11, 0)),
    Part.LineSegment(Vector(15.5, -11, 0), Vector(11.5, -11, 0)),
    Part.LineSegment(Vector(11.5, -11, 0), Vector(11.5, -3.5, 0)),
    Part.LineSegment(Vector(11.5, -3.5, 0), Vector(15.5, -3.5, 0)),
], False)
sketch7.addConstraint([
    Sketcher.Constraint("Coincident", 0, 2, 1, 1),
    Sketcher.Constraint("Coincident", 1, 2, 2, 1),
    Sketcher.Constraint("Coincident", 2, 2, 3, 1),
    Sketcher.Constraint("Coincident", 3, 2, 0, 1),
    Sketcher.Constraint("Vertical", 0),
    Sketcher.Constraint("Horizontal", 1),
    Sketcher.Constraint("Vertical", 2),
    Sketcher.Constraint("Horizontal", 3),
    Sketcher.Constraint("DistanceX", 1, 2, 1, 1, Q("4 mm")),
    Sketcher.Constraint("DistanceY", 0, 2, 0, 1, Q("7.5 mm")),
    Sketcher.Constraint("DistanceY", 0, 2, -1, 1, Q("11 mm")),
    Sketcher.Constraint("DistanceX", -1, 1, 0, 2, Q("15.5 mm")),
])
pad5 = body.newObject("PartDesign::Pad", "Pad004")
pad5.Profile = sketch7
pad5.Length = 4.5
pad5.Reversed = True

# Sketch on XY plane
sketch8 = body.newObject("Sketcher::SketchObject", "Sketch007")
sketch8.AttachmentSupport = (doc.getObject("XY_Plane"), [""])
sketch8.MapMode = "FlatFace"
sketch8.AttachmentOffset = App.Placement(Vector(0, 0, 1), App.Rotation())
sketch8.addGeometry([
    Part.LineSegment(Vector(-15.5, 10.5, 0), Vector(-15.5, 7.25, 0)),
    Part.LineSegment(Vector(-15.5, 7.25, 0), Vector(-11, 7.25, 0)),
    Part.LineSegment(Vector(-11, 7.25, 0), Vector(-11, 10.5, 0)),
    Part.LineSegment(Vector(-11, 10.5, 0), Vector(-15.5, 10.5, 0)),
], False)
sketch8.addConstraint([
    Sketcher.Constraint("Coincident", 0, 2, 1, 1),
    Sketcher.Constraint("Coincident", 1, 2, 2, 1),
    Sketcher.Constraint("Coincident", 2, 2, 3, 1),
    Sketcher.Constraint("Coincident", 3, 2, 0, 1),
    Sketcher.Constraint("Vertical", 0),
    Sketcher.Constraint("Horizontal", 1),
    Sketcher.Constraint("Vertical", 2),
    Sketcher.Constraint("Horizontal", 3),
    Sketcher.Constraint("DistanceX", 1, 1, 1, 2, Q("4.5 mm")),
    Sketcher.Constraint("DistanceX", 1, 2, -1, 1, Q("11 mm")),
    Sketcher.Constraint("DistanceY", 0, 2, 0, 1, Q("3.25 mm")),
    Sketcher.Constraint("DistanceY", -1, 1, 2, 2, Q("10.5 mm")),
])
pad6 = body.newObject("PartDesign::Pad", "Pad005")
pad6.Profile = sketch8
pad6.Length = 1.5

# Sketch on XY plane
sketch9 = body.newObject("Sketcher::SketchObject", "Sketch008")
sketch9.AttachmentSupport = (doc.getObject("XY_Plane"), [""])
sketch9.MapMode = "FlatFace"
sketch9.AttachmentOffset = App.Placement(Vector(0, 0, 1), App.Rotation())
sketch9.addGeometry([
    Part.LineSegment(Vector(11.5, -3.5, 0), Vector(11.5, -11, 0)),
    Part.LineSegment(Vector(11.5, -11, 0), Vector(15.5, -11, 0)),
    Part.LineSegment(Vector(15.5, -11, 0), Vector(15.5, -3.5, 0)),
    Part.LineSegment(Vector(15.5, -3.5, 0), Vector(11.5, -3.5, 0)),
], False)
sketch9.addConstraint([
    Sketcher.Constraint("Coincident", 0, 2, 1, 1),
    Sketcher.Constraint("Coincident", 1, 2, 2, 1),
    Sketcher.Constraint("Coincident", 2, 2, 3, 1),
    Sketcher.Constraint("Coincident", 3, 2, 0, 1),
    Sketcher.Constraint("Vertical", 0),
    Sketcher.Constraint("Horizontal", 1),
    Sketcher.Constraint("Vertical", 2),
    Sketcher.Constraint("Horizontal", 3),
    Sketcher.Constraint("DistanceX", 1, 1, 1, 2, Q("4 mm")),
    Sketcher.Constraint("DistanceY", 0, 2, 0, 1, Q("7.5 mm")),
    Sketcher.Constraint("DistanceY", 0, 2, -1, 1, Q("11 mm")),
    Sketcher.Constraint("DistanceX", -1, 1, 0, 2, Q("11.5 mm")),
])
pad7 = body.newObject("PartDesign::Pad", "Pad006")
pad7.Profile = sketch9
pad7.Length = 2

doc.recompute()
